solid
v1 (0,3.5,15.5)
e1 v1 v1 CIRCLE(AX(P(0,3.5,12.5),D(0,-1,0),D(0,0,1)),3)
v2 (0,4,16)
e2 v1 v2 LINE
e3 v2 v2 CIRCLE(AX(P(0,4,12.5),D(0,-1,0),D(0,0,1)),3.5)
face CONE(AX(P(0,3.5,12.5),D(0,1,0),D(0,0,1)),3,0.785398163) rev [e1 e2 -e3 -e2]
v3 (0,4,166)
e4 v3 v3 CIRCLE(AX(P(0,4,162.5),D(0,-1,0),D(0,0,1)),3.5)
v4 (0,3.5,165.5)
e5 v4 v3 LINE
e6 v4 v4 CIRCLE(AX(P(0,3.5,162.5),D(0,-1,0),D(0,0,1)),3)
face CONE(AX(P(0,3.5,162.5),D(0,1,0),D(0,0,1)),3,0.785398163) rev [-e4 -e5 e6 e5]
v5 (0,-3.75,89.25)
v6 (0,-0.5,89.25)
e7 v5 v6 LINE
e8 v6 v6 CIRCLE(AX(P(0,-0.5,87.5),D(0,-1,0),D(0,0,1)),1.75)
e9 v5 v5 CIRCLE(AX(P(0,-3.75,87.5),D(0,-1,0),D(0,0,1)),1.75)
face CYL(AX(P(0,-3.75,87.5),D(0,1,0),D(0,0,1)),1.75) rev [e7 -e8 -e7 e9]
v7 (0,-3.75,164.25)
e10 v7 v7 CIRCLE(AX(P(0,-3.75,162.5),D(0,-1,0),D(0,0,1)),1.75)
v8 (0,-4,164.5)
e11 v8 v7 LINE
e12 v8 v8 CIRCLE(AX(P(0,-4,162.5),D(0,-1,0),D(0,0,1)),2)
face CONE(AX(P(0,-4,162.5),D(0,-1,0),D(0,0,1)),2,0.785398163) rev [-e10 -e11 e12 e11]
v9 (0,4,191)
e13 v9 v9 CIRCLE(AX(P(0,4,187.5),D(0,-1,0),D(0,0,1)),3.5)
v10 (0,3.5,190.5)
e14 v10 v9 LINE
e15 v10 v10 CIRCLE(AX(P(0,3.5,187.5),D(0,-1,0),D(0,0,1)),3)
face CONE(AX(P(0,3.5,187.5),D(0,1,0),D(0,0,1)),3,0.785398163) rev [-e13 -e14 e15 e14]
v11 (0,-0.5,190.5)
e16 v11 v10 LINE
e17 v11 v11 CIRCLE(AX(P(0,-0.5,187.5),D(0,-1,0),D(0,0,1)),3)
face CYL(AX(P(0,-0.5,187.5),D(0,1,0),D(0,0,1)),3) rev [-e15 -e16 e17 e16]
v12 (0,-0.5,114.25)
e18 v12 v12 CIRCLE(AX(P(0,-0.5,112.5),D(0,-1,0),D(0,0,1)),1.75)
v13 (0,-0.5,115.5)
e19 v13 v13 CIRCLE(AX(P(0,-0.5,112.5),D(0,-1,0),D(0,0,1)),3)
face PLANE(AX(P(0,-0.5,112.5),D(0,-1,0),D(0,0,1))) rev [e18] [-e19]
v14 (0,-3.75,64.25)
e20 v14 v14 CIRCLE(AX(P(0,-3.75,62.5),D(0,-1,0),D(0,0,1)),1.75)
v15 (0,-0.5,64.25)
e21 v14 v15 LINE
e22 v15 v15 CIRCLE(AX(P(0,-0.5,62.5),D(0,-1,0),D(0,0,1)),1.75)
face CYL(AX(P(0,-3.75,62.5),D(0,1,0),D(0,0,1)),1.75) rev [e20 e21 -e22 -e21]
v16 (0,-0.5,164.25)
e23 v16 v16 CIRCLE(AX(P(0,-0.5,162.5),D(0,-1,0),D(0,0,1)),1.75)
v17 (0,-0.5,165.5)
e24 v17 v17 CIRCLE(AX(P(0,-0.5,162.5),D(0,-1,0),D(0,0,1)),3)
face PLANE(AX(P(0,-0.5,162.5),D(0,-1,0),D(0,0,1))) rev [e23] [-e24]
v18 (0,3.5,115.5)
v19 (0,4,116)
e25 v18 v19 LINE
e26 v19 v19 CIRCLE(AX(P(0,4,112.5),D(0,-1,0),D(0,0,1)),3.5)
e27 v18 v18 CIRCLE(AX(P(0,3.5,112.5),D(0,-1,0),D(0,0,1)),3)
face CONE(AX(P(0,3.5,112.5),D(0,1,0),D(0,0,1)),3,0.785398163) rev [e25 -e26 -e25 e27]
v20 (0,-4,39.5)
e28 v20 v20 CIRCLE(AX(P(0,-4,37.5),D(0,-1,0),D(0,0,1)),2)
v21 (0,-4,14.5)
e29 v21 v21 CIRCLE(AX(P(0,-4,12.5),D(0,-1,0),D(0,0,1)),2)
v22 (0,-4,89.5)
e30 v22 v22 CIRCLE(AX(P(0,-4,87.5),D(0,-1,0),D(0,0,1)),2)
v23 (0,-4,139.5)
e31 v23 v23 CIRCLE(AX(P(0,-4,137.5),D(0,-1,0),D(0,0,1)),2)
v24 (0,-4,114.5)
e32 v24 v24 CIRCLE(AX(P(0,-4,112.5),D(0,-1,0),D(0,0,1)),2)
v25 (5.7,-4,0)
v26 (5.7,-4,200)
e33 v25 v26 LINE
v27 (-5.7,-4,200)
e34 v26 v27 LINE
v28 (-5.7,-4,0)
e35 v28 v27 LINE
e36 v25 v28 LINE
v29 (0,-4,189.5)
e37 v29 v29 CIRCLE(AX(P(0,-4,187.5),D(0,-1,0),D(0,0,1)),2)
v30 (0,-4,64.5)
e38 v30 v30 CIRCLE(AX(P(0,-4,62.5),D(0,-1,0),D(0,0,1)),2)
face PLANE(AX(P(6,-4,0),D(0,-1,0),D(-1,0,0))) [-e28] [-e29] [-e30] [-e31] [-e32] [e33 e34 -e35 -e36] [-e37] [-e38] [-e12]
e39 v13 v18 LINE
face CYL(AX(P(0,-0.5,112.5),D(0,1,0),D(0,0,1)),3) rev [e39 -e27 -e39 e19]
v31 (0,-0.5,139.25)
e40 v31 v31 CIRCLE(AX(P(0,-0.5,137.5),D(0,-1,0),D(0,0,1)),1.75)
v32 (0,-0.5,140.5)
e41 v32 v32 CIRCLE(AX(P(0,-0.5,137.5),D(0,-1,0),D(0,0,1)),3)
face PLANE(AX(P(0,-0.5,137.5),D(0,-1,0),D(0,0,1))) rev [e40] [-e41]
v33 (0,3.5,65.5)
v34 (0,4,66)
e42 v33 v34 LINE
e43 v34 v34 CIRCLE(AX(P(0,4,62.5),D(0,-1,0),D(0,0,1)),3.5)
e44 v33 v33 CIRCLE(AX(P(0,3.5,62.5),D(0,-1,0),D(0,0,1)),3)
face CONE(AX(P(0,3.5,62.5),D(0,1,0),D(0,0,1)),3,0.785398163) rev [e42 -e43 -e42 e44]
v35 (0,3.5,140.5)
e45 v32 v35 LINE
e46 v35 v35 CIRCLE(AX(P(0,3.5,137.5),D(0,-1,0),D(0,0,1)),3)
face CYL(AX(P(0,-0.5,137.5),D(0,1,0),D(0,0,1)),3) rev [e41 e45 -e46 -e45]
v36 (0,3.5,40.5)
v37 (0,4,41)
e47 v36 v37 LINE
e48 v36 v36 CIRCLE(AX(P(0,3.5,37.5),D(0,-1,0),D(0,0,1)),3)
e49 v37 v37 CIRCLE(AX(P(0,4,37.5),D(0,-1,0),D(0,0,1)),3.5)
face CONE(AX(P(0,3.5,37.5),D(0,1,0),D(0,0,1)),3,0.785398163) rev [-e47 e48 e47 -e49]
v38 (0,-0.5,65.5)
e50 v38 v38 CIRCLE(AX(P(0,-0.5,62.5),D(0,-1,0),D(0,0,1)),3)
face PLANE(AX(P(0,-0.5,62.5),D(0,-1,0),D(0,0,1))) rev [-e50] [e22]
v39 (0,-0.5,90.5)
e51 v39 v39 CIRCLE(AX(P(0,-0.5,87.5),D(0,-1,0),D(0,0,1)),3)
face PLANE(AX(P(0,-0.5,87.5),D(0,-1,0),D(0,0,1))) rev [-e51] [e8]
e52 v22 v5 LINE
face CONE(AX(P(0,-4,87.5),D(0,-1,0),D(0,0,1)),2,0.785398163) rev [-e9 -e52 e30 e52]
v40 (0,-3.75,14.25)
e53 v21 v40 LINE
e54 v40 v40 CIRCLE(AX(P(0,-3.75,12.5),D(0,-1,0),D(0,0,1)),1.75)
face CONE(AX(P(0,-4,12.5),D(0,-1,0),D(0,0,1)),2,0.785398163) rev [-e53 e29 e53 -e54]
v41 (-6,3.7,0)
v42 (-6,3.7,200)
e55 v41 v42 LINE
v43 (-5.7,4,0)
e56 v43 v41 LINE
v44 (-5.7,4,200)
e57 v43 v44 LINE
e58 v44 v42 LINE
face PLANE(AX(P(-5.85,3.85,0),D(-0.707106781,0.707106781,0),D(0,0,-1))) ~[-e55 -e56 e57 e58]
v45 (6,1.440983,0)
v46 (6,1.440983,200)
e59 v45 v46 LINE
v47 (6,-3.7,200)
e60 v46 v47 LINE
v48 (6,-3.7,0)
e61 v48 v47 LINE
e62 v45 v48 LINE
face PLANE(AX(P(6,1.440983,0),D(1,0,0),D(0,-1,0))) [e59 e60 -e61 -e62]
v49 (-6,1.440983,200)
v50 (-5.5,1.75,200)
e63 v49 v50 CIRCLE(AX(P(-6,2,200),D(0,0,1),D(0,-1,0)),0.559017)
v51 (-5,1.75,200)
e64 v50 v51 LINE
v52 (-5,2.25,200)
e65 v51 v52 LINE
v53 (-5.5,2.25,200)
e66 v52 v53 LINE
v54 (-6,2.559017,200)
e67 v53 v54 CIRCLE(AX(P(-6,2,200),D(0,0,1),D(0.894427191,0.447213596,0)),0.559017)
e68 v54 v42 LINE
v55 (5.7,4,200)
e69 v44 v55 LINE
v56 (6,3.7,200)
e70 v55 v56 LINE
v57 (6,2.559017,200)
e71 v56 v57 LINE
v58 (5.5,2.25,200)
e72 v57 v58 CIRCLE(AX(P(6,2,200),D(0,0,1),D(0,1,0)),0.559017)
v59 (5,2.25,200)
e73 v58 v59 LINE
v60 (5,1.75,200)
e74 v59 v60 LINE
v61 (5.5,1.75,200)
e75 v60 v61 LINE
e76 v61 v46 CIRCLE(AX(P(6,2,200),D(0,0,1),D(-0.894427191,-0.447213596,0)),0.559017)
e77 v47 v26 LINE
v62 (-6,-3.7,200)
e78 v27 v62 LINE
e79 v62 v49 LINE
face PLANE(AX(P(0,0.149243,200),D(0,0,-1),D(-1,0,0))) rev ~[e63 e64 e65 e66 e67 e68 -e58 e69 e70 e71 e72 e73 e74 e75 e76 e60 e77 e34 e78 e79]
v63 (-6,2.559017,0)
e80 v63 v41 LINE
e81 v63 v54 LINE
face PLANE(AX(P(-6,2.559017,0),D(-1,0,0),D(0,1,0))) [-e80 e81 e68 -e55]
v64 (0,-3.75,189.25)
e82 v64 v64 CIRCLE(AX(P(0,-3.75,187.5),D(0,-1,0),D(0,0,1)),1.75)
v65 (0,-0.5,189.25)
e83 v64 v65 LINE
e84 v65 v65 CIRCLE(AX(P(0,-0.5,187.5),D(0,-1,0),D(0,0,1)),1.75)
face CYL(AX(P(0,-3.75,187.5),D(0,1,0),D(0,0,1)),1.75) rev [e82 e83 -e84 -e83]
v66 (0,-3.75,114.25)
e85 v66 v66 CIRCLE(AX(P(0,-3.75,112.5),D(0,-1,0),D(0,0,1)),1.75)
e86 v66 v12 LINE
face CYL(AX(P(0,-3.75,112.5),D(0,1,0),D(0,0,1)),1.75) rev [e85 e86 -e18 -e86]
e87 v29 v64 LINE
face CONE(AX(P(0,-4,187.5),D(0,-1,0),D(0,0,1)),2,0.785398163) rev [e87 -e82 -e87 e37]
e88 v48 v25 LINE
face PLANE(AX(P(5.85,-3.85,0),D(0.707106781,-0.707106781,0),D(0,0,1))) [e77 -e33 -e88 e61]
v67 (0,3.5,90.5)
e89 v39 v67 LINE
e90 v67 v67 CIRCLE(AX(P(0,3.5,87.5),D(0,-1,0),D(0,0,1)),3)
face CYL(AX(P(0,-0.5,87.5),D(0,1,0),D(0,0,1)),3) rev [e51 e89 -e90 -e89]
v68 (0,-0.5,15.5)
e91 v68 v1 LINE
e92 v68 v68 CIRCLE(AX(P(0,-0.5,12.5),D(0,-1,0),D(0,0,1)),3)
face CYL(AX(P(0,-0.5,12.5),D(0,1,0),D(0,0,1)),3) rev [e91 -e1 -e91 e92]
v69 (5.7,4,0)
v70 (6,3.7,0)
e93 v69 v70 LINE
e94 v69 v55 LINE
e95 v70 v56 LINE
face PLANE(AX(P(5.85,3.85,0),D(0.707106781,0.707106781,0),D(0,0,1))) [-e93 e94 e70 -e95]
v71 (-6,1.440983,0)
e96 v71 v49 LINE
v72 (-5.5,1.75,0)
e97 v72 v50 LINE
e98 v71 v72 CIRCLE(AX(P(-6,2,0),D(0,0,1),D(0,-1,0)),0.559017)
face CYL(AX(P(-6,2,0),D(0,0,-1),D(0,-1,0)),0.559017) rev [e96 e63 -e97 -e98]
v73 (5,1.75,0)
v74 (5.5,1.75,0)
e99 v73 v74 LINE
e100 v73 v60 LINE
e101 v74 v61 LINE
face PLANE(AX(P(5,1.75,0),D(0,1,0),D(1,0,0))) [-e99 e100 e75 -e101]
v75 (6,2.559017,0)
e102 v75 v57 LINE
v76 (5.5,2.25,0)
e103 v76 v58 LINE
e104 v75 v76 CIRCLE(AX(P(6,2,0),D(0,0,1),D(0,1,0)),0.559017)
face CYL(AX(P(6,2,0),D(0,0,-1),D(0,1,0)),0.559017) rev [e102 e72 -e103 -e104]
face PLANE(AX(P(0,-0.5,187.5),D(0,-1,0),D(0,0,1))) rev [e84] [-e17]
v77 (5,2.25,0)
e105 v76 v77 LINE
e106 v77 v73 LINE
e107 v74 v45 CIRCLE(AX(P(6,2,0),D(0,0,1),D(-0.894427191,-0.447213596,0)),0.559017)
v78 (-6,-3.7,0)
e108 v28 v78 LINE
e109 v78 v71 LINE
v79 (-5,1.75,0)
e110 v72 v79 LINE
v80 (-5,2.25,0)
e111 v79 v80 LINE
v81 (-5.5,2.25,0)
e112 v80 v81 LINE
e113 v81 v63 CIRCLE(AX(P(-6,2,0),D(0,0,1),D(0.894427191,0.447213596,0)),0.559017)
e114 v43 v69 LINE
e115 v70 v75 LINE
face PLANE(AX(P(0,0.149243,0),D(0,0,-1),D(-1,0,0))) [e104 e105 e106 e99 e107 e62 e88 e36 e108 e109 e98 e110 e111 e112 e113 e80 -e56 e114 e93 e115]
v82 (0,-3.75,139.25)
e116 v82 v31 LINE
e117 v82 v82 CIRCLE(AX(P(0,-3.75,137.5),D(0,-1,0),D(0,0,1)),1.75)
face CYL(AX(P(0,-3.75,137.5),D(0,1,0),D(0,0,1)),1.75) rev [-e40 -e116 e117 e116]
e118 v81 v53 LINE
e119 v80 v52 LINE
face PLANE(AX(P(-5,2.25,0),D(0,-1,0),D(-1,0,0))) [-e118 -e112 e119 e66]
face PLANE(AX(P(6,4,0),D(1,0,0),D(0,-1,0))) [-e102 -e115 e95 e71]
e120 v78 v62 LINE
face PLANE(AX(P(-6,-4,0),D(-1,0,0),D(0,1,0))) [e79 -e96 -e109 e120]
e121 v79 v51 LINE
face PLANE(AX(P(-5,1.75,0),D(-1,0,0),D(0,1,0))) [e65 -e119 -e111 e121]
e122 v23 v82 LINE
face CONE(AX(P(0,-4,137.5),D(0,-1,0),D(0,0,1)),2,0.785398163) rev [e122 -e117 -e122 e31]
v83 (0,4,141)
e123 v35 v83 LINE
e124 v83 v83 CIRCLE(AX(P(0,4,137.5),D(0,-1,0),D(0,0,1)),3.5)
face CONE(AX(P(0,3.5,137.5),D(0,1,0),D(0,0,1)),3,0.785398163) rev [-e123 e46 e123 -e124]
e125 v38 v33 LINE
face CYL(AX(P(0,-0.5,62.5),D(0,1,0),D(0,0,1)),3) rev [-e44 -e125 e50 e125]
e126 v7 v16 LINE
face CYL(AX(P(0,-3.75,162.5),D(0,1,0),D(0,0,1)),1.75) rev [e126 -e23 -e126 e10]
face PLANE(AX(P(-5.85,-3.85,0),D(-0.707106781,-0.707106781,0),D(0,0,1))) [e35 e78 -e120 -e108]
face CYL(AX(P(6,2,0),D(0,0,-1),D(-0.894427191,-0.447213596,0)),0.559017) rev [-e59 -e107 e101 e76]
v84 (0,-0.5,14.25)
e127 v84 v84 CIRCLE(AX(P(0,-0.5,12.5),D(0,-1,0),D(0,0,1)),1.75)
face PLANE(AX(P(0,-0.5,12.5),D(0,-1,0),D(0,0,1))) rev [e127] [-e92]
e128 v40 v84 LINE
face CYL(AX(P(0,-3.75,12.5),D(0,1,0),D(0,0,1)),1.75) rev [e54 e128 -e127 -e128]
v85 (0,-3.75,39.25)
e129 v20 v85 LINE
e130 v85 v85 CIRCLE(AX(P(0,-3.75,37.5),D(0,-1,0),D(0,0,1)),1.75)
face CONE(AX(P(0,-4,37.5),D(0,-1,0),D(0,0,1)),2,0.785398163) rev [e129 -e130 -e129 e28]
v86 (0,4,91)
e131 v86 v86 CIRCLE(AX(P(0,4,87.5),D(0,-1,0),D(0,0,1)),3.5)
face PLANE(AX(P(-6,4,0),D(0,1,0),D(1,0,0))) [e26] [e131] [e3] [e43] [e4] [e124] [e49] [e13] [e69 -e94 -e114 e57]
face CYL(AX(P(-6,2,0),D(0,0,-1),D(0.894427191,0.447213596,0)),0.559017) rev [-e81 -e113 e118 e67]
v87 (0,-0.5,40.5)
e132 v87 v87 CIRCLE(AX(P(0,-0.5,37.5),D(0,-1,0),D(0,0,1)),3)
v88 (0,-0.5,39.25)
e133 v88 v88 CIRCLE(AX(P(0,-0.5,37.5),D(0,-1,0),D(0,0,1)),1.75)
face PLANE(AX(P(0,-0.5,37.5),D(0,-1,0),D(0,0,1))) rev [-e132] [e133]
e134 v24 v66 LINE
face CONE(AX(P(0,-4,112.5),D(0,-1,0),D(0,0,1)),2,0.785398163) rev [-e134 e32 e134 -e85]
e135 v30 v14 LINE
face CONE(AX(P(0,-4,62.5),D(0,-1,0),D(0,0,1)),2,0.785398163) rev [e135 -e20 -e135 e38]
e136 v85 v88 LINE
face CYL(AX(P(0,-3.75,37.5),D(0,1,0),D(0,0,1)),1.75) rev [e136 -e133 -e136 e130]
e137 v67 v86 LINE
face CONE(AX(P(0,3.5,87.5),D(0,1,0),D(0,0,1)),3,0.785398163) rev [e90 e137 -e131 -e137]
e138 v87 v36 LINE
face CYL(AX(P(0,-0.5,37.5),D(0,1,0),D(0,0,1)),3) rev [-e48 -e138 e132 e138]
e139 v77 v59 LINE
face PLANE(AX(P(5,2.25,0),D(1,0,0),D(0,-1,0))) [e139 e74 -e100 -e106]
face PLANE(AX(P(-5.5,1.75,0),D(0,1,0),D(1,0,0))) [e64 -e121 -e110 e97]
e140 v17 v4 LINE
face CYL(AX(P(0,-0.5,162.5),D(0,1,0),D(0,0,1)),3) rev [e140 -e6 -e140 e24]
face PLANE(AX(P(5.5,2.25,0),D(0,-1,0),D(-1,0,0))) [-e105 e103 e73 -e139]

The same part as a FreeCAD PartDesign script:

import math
import FreeCAD as App
import Part
import Sketcher

V = App.Vector
Q = App.Units.Quantity


def edges_at(feature, points):
    """Names of the edges that pass closest to the given points."""
    edges = feature.Shape.Edges
    near = lambda p: min(range(len(edges)), key=lambda i: edges[i].distToShape(Part.Vertex(*p))[0])
    return sorted({f"Edge{near(p) + 1}" for p in points})


def add_polygon(sketch, points):
    """Adds a closed chain of lines whose ends are joined by coincident constraints."""
    first, n = sketch.GeometryCount, len(points)
    for a, b in zip(points, points[1:] + points[:1]):
        sketch.addGeometry(Part.LineSegment(App.Vector(*a, 0), App.Vector(*b, 0)), False)
    for i in range(n):
        sketch.addConstraint(Sketcher.Constraint("Coincident", first + i, 2, first + (i + 1) % n, 1))

doc = App.newDocument("Part")
body = doc.addObject("PartDesign::Body", "Body")

# Sketch on XY plane
sketch1 = body.newObject("Sketcher::SketchObject", "Sketch")
sketch1.AttachmentSupport = (doc.getObject("XY_Plane"), [""])
sketch1.MapMode = "FlatFace"
sketch1.addGeometry(Part.LineSegment(V(6, 4, 0), V(-6, 4, 0)), False)
sketch1.addGeometry(Part.LineSegment(V(-6, 4, 0), V(-6, 2.559017, 0)), False)
sketch1.addGeometry(Part.ArcOfCircle(Part.Circle(V(-6, 2, 0), V(0, 0, 1), 0.559017), math.radians(26.565051), math.radians(90)), False)
sketch1.addGeometry(Part.LineSegment(V(-5.5, 2.25, 0), V(-5, 2.25, 0)), False)
sketch1.addGeometry(Part.LineSegment(V(-5, 2.25, 0), V(-5, 1.75, 0)), False)
sketch1.addGeometry(Part.LineSegment(V(-5, 1.75, 0), V(-5.5, 1.75, 0)), False)
sketch1.addGeometry(Part.ArcOfCircle(Part.Circle(V(-6, 2, 0), V(0, 0, 1), 0.559017), math.radians(-90), math.radians(-26.565051)), False)
sketch1.addGeometry(Part.LineSegment(V(-6, 1.440983, 0), V(-6, -4, 0)), False)
sketch1.addGeometry(Part.LineSegment(V(-6, -4, 0), V(6, -4, 0)), False)
sketch1.addGeometry(Part.LineSegment(V(6, -4, 0), V(6, 1.440983, 0)), False)
sketch1.addGeometry(Part.ArcOfCircle(Part.Circle(V(6, 2, 0), V(0, 0, 1), 0.559017), math.radians(-153.434949), math.radians(-90)), False)
sketch1.addGeometry(Part.LineSegment(V(5.5, 1.75, 0), V(5, 1.75, 0)), False)
sketch1.addGeometry(Part.LineSegment(V(5, 1.75, 0), V(5, 2.25, 0)), False)
sketch1.addGeometry(Part.LineSegment(V(5, 2.25, 0), V(5.5, 2.25, 0)), False)
sketch1.addGeometry(Part.ArcOfCircle(Part.Circle(V(6, 2, 0), V(0, 0, 1), 0.559017), math.radians(90), math.radians(153.434949)), False)
sketch1.addGeometry(Part.LineSegment(V(6, 2.559017, 0), V(6, 4, 0)), False)
sketch1.addConstraint(Sketcher.Constraint("Coincident", 0, 2, 1, 1))
sketch1.addConstraint(Sketcher.Constraint("Coincident", 1, 2, 2, 2))
sketch1.addConstraint(Sketcher.Constraint("Coincident", 2, 1, 3, 1))
sketch1.addConstraint(Sketcher.Constraint("Coincident", 3, 2, 4, 1))
sketch1.addConstraint(Sketcher.Constraint("Coincident", 4, 2, 5, 1))
sketch1.addConstraint(Sketcher.Constraint("Coincident", 5, 2, 6, 2))
sketch1.addConstraint(Sketcher.Constraint("Coincident", 6, 1, 7, 1))
sketch1.addConstraint(Sketcher.Constraint("Coincident", 7, 2, 8, 1))
sketch1.addConstraint(Sketcher.Constraint("Coincident", 8, 2, 9, 1))
sketch1.addConstraint(Sketcher.Constraint("Coincident", 9, 2, 10, 2))
sketch1.addConstraint(Sketcher.Constraint("Coincident", 10, 1, 11, 1))
sketch1.addConstraint(Sketcher.Constraint("Coincident", 11, 2, 12, 1))
sketch1.addConstraint(Sketcher.Constraint("Coincident", 12, 2, 13, 1))
sketch1.addConstraint(Sketcher.Constraint("Coincident", 13, 2, 14, 2))
sketch1.addConstraint(Sketcher.Constraint("Coincident", 14, 1, 15, 1))
sketch1.addConstraint(Sketcher.Constraint("Coincident", 15, 2, 0, 1))
sketch1.addConstraint(Sketcher.Constraint("Horizontal", 0))
sketch1.addConstraint(Sketcher.Constraint("Vertical", 1))
sketch1.addConstraint(Sketcher.Constraint("Horizontal", 3))
sketch1.addConstraint(Sketcher.Constraint("Vertical", 4))
sketch1.addConstraint(Sketcher.Constraint("Horizontal", 5))
sketch1.addConstraint(Sketcher.Constraint("Vertical", 7))
sketch1.addConstraint(Sketcher.Constraint("Horizontal", 8))
sketch1.addConstraint(Sketcher.Constraint("Vertical", 9))
sketch1.addConstraint(Sketcher.Constraint("Horizontal", 11))
sketch1.addConstraint(Sketcher.Constraint("Vertical", 12))
sketch1.addConstraint(Sketcher.Constraint("Horizontal", 13))
sketch1.addConstraint(Sketcher.Constraint("Vertical", 15))
sketch1.addConstraint(Sketcher.Constraint("Coincident", 6, 3, 2, 3))
sketch1.addConstraint(Sketcher.Constraint("Coincident", 14, 3, 10, 3))
sketch1.addConstraint(Sketcher.Constraint("Equal", 2, 6))
sketch1.addConstraint(Sketcher.Constraint("Equal", 6, 10))
sketch1.addConstraint(Sketcher.Constraint("Equal", 10, 14))
sketch1.addConstraint(Sketcher.Constraint("Symmetric", 0, 2, 8, 2, -1, 1))
sketch1.addConstraint(Sketcher.Constraint("Symmetric", 2, 3, 10, 3, -2))
sketch1.addConstraint(Sketcher.Constraint("Symmetric", 4, 2, 11, 2, -2))
sketch1.addConstraint(Sketcher.Constraint("Horizontal", 3, 2, 12, 2))
sketch1.addConstraint(Sketcher.Constraint("Vertical", 6, 3, 0, 2))
sketch1.addConstraint(Sketcher.Constraint("Vertical", 2, 1, 5, 2))
sketch1.addConstraint(Sketcher.Constraint("Vertical", 1, 2, 6, 1))
sketch1.addConstraint(Sketcher.Constraint("Vertical", 9, 2, 14, 1))
sketch1.addConstraint(Sketcher.Constraint("Equal", 13, 4))
sketch1.addConstraint(Sketcher.Constraint("DistanceX", 0, 2, 0, 1, Q("12 mm")))
sketch1.addConstraint(Sketcher.Constraint("DistanceX", 3, 1, 3, 2, Q("0.5 mm")))
sketch1.addConstraint(Sketcher.Constraint("DistanceY", -1, 1, 2, 3, Q("2 mm")))
sketch1.addConstraint(Sketcher.Constraint("DistanceY", -1, 1, 0, 2, Q("4 mm")))
sketch1.addConstraint(Sketcher.Constraint("DistanceX", 3, 2, -1, 1, Q("5 mm")))
pad1 = body.newObject("PartDesign::Pad", "Pad")
pad1.Profile = sketch1
pad1.Length = 200
doc.recompute()

chamfer = body.newObject("PartDesign::Chamfer", "Chamfer")
chamfer.Base = (pad1, edges_at(pad1, [
    (-6, 4, 100),
    (6, 4, 100),
    (6, -4, 100),
    (-6, -4, 100),
]))
chamfer.Size = 0.3

# Sketch on YZ plane
sketch2 = body.newObject("Sketcher::SketchObject", "Sketch001")
sketch2.AttachmentSupport = (doc.getObject("YZ_Plane"), [""])
sketch2.MapMode = "FlatFace"
add_polygon(sketch2, [(-4, 12.5), (4, 12.5), (4, 16), (3.5, 15.5), (-0.5, 15.5), (-0.5, 14.25), (-3.75, 14.25), (-4, 14.5)])  # lines 0-7
sketch2.addGeometry(Part.LineSegment(V(4, 12.5, 0), V(-4, 12.5, 0)), True)  # axis
sketch2.addConstraint(Sketcher.Constraint("Horizontal", 0))
sketch2.addConstraint(Sketcher.Constraint("Vertical", 1))
sketch2.addConstraint(Sketcher.Constraint("Horizontal", 3))
sketch2.addConstraint(Sketcher.Constraint("Vertical", 4))
sketch2.addConstraint(Sketcher.Constraint("Horizontal", 5))
sketch2.addConstraint(Sketcher.Constraint("Vertical", 7))
sketch2.addConstraint(Sketcher.Constraint("Horizontal", 8))
sketch2.addConstraint(Sketcher.Constraint("Coincident", 8, 1, 0, 2))
sketch2.addConstraint(Sketcher.Constraint("Perpendicular", 2, 6))
sketch2.addConstraint(Sketcher.Constraint("Vertical", 6, 2, 8, 2))
sketch2.addConstraint(Sketcher.Constraint("DistanceX", 0, 1, 0, 2, Q("8 mm")))
sketch2.addConstraint(Sketcher.Constraint("DistanceX", 3, 2, 3, 1, Q("4 mm")))
sketch2.addConstraint(Sketcher.Constraint("DistanceY", 7, 2, 7, 1, Q("2 mm")))
sketch2.addConstraint(Sketcher.Constraint("Angle", 2, Q("-135 deg")))
sketch2.addConstraint(Sketcher.Constraint("DistanceY", 1, 1, 1, 2, Q("3.5 mm")))
sketch2.addConstraint(Sketcher.Constraint("DistanceX", -1, 1, 0, 2, Q("4 mm")))
sketch2.addConstraint(Sketcher.Constraint("DistanceY", -1, 1, 1, 2, Q("16 mm")))
sketch2.addConstraint(Sketcher.Constraint("DistanceY", 0, 2, 2, 2, Q("3 mm")))
sketch2.addConstraint(Sketcher.Constraint("DistanceX", 5, 2, 5, 1, Q("3.25 mm")))
groove = body.newObject("PartDesign::Groove", "Groove")
groove.Profile = sketch2
groove.ReferenceAxis = (sketch2, ["Axis0"])
groove.Angle = 360
doc.recompute()

linearpattern = body.newObject("PartDesign::LinearPattern", "LinearPattern")
linearpattern.Originals = [groove]
linearpattern.Direction = (doc.getObject("Z_Axis"), [""])
linearpattern.Mode = "offset"
linearpattern.Offset = 25
linearpattern.Occurrences = 8
body.Tip = linearpattern

doc.recompute()
